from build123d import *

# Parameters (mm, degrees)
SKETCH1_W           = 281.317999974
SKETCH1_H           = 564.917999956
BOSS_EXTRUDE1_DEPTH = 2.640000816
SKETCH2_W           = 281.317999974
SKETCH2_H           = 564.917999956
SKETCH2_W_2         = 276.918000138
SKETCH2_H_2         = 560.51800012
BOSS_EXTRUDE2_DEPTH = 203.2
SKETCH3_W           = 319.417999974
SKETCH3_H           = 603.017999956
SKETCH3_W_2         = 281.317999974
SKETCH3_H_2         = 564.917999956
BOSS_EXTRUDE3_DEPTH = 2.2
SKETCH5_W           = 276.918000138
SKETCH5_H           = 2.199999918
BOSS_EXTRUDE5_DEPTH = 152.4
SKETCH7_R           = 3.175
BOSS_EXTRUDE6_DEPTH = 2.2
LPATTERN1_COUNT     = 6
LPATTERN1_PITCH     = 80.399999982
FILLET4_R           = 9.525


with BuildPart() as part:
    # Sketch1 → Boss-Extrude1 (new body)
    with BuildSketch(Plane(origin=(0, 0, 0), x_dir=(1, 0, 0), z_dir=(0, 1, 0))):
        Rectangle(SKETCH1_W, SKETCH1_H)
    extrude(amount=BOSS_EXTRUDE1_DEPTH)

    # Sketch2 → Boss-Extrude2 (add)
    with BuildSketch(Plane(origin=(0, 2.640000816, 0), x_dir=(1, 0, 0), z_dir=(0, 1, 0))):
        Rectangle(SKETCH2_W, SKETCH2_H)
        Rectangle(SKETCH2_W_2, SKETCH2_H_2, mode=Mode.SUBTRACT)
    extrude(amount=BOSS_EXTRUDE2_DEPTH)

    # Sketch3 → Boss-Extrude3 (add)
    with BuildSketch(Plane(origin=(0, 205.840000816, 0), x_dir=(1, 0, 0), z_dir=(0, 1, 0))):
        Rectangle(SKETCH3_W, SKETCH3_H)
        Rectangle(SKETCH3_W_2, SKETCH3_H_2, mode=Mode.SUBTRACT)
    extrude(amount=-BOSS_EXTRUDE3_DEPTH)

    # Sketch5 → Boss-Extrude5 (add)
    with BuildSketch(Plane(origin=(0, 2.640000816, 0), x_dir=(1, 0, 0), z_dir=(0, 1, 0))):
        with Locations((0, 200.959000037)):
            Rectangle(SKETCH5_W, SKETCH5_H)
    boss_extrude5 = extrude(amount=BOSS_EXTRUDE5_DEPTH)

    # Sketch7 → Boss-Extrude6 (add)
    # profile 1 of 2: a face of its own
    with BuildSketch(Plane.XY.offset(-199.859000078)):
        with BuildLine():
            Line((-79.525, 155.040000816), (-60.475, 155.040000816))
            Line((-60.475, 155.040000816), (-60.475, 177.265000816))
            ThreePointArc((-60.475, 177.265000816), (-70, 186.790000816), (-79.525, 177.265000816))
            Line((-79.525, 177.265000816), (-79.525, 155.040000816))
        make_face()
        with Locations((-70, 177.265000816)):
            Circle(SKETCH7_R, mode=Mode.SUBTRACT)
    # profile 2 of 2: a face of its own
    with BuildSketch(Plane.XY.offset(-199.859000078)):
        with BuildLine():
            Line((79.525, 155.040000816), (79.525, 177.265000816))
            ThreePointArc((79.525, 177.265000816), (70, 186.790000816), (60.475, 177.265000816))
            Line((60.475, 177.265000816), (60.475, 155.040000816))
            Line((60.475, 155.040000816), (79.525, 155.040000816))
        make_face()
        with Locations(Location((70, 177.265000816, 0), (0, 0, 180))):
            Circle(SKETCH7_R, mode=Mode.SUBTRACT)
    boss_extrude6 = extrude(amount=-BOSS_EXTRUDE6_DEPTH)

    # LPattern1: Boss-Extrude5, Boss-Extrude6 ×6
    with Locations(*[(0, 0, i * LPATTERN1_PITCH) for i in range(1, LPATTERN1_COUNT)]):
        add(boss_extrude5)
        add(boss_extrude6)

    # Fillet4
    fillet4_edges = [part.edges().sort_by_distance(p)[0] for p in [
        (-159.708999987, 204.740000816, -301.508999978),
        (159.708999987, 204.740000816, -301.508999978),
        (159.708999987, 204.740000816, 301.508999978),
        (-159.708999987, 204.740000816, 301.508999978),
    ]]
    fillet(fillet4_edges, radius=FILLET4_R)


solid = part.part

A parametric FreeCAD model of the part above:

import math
import FreeCAD as App
import Part
import Sketcher

V = App.Vector
Q = App.Units.Quantity


def edges_at(feature, points):
    """Names of the edges that pass closest to the given points."""
    edges = feature.Shape.Edges
    near = lambda p: min(range(len(edges)), key=lambda i: edges[i].distToShape(Part.Vertex(*p))[0])
    return sorted({f"Edge{near(p) + 1}" for p in points})

doc = App.newDocument("Part")
body = doc.addObject("PartDesign::Body", "Body")

# Sketch on XZ plane
sketch1 = body.newObject("Sketcher::SketchObject", "Sketch")
sketch1.AttachmentSupport = (doc.getObject("XZ_Plane"), [""])
sketch1.MapMode = "FlatFace"
sketch1.addGeometry([
    Part.LineSegment(V(-141, -282, 0), V(-141, 282, 0)),
    Part.LineSegment(V(-141, 282, 0), V(141, 282, 0)),
    Part.LineSegment(V(141, 282, 0), V(141, -282, 0)),
    Part.LineSegment(V(141, -282, 0), V(-141, -282, 0)),
], False)
sketch1.addConstraint([
    Sketcher.Constraint("Coincident", 0, 2, 1, 1),
    Sketcher.Constraint("Coincident", 1, 2, 2, 1),
    Sketcher.Constraint("Coincident", 2, 2, 3, 1),
    Sketcher.Constraint("Coincident", 3, 2, 0, 1),
    Sketcher.Constraint("Vertical", 0),
    Sketcher.Constraint("Horizontal", 1),
    Sketcher.Constraint("Vertical", 2),
    Sketcher.Constraint("Horizontal", 3),
    Sketcher.Constraint("Symmetric", 0, 2, 2, 2, -1, 1),
    Sketcher.Constraint("DistanceX", 1, 1, 1, 2, Q("281.318 mm")),
    Sketcher.Constraint("DistanceY", 0, 1, 0, 2, Q("564.918 mm")),
])
pad1 = body.newObject("PartDesign::Pad", "Pad")
pad1.Profile = sketch1
pad1.Length = 2.640001
pad1.Reversed = True

# Sketch on XZ plane
sketch2 = body.newObject("Sketcher::SketchObject", "Sketch001")
sketch2.AttachmentSupport = (doc.getObject("XZ_Plane"), [""])
sketch2.MapMode = "FlatFace"
sketch2.AttachmentOffset = App.Placement(V(0, 0, -2.640001), App.Rotation())
sketch2.addGeometry([
    Part.LineSegment(V(-141, -282, 0), V(-141, 282, 0)),  # 0
    Part.LineSegment(V(-141, 282, 0), V(141, 282, 0)),  # 1
    Part.LineSegment(V(141, 282, 0), V(141, -282, 0)),  # 2
    Part.LineSegment(V(141, -282, 0), V(-141, -282, 0)),  # 3
    Part.LineSegment(V(138, 280, 0), V(-138, 280, 0)),  # 4
    Part.LineSegment(V(-138, 280, 0), V(-138, -280, 0)),  # 5
    Part.LineSegment(V(-138, -280, 0), V(138, -280, 0)),  # 6
    Part.LineSegment(V(138, -280, 0), V(138, 280, 0)),  # 7
], False)
sketch2.addConstraint([
    Sketcher.Constraint("Coincident", 0, 2, 1, 1),
    Sketcher.Constraint("Coincident", 1, 2, 2, 1),
    Sketcher.Constraint("Coincident", 2, 2, 3, 1),
    Sketcher.Constraint("Coincident", 3, 2, 0, 1),
    Sketcher.Constraint("Coincident", 4, 2, 5, 1),
    Sketcher.Constraint("Coincident", 5, 2, 6, 1),
    Sketcher.Constraint("Coincident", 6, 2, 7, 1),
    Sketcher.Constraint("Coincident", 7, 2, 4, 1),
    Sketcher.Constraint("Vertical", 0),
    Sketcher.Constraint("Horizontal", 1),
    Sketcher.Constraint("Vertical", 2),
    Sketcher.Constraint("Horizontal", 3),
    Sketcher.Constraint("Horizontal", 4),
    Sketcher.Constraint("Vertical", 5),
    Sketcher.Constraint("Horizontal", 6),
    Sketcher.Constraint("Vertical", 7),
    Sketcher.Constraint("Symmetric", 0, 2, 2, 2, -1, 1),
    Sketcher.Constraint("Symmetric", 4, 2, 6, 2, -1, 1),
    Sketcher.Constraint("DistanceX", 1, 1, 1, 2, Q("281.318 mm")),
    Sketcher.Constraint("DistanceX", 4, 2, 4, 1, Q("276.918 mm")),
    Sketcher.Constraint("DistanceY", 0, 1, 0, 2, Q("564.918 mm")),
    Sketcher.Constraint("DistanceY", 5, 2, 5, 1, Q("560.518 mm")),
])
pad2 = body.newObject("PartDesign::Pad", "Pad001")
pad2.Profile = sketch2
pad2.Length = Q("8 in")
pad2.Reversed = True

# Sketch on XZ plane
sketch3 = body.newObject("Sketcher::SketchObject", "Sketch002")
sketch3.AttachmentSupport = (doc.getObject("XZ_Plane"), [""])
sketch3.MapMode = "FlatFace"
sketch3.AttachmentOffset = App.Placement(V(0, 0, -205.840001), App.Rotation())
sketch3.addGeometry([
    Part.LineSegment(V(-160, -302, 0), V(-160, 302, 0)),  # 0
    Part.LineSegment(V(-160, 302, 0), V(160, 302, 0)),  # 1
    Part.LineSegment(V(160, 302, 0), V(160, -302, 0)),  # 2
    Part.LineSegment(V(160, -302, 0), V(-160, -302, 0)),  # 3
    Part.LineSegment(V(141, 282, 0), V(-141, 282, 0)),  # 4
    Part.LineSegment(V(-141, 282, 0), V(-141, -282, 0)),  # 5
    Part.LineSegment(V(-141, -282, 0), V(141, -282, 0)),  # 6
    Part.LineSegment(V(141, -282, 0), V(141, 282, 0)),  # 7
], False)
sketch3.addConstraint([
    Sketcher.Constraint("Coincident", 0, 2, 1, 1),
    Sketcher.Constraint("Coincident", 1, 2, 2, 1),
    Sketcher.Constraint("Coincident", 2, 2, 3, 1),
    Sketcher.Constraint("Coincident", 3, 2, 0, 1),
    Sketcher.Constraint("Coincident", 4, 2, 5, 1),
    Sketcher.Constraint("Coincident", 5, 2, 6, 1),
    Sketcher.Constraint("Coincident", 6, 2, 7, 1),
    Sketcher.Constraint("Coincident", 7, 2, 4, 1),
    Sketcher.Constraint("Vertical", 0),
    Sketcher.Constraint("Horizontal", 1),
    Sketcher.Constraint("Vertical", 2),
    Sketcher.Constraint("Horizontal", 3),
    Sketcher.Constraint("Horizontal", 4),
    Sketcher.Constraint("Vertical", 5),
    Sketcher.Constraint("Horizontal", 6),
    Sketcher.Constraint("Vertical", 7),
    Sketcher.Constraint("Symmetric", 0, 2, 2, 2, -1, 1),
    Sketcher.Constraint("Symmetric", 4, 2, 6, 2, -1, 1),
    Sketcher.Constraint("DistanceX", 0, 2, 4, 2, Q("0.75 in")),
    Sketcher.Constraint("DistanceY", 4, 2, 0, 2, Q("0.75 in")),
    Sketcher.Constraint("DistanceX", 1, 1, 1, 2, Q("319.418 mm")),
    Sketcher.Constraint("DistanceY", 0, 1, 0, 2, Q("603.018 mm")),
])
pad3 = body.newObject("PartDesign::Pad", "Pad002")
pad3.Profile = sketch3
pad3.Length = 2.2

# Sketch on XZ plane
sketch4 = body.newObject("Sketcher::SketchObject", "Sketch003")
sketch4.AttachmentSupport = (doc.getObject("XZ_Plane"), [""])
sketch4.MapMode = "FlatFace"
sketch4.AttachmentOffset = App.Placement(V(0, 0, -2.640001), App.Rotation())
sketch4.addGeometry([
    Part.LineSegment(V(-138.5, -202.1, 0), V(-138.5, -199.9, 0)),
    Part.LineSegment(V(-138.5, -199.9, 0), V(138.5, -199.9, 0)),
    Part.LineSegment(V(138.5, -199.9, 0), V(138.5, -202.1, 0)),
    Part.LineSegment(V(138.5, -202.1, 0), V(-138.5, -202.1, 0)),
], False)
sketch4.addConstraint([
    Sketcher.Constraint("Coincident", 0, 2, 1, 1),
    Sketcher.Constraint("Coincident", 1, 2, 2, 1),
    Sketcher.Constraint("Coincident", 2, 2, 3, 1),
    Sketcher.Constraint("Coincident", 3, 2, 0, 1),
    Sketcher.Constraint("Vertical", 0),
    Sketcher.Constraint("Horizontal", 1),
    Sketcher.Constraint("Vertical", 2),
    Sketcher.Constraint("Horizontal", 3),
    Sketcher.Constraint("DistanceX", 1, 1, 1, 2, Q("276.918 mm")),
    Sketcher.Constraint("DistanceY", 0, 1, 0, 2, Q("2.2 mm")),
    Sketcher.Constraint("DistanceX", 0, 2, -1, 1, Q("138.459 mm")),
    Sketcher.Constraint("DistanceY", 0, 2, -1, 1, Q("199.859 mm")),
])
pad4 = body.newObject("PartDesign::Pad", "Pad003")
pad4.Profile = sketch4
pad4.Length = Q("6 in")
pad4.Reversed = True

# Sketch on XY plane
sketch5 = body.newObject("Sketcher::SketchObject", "Sketch004")
sketch5.AttachmentSupport = (doc.getObject("XY_Plane"), [""])
sketch5.MapMode = "FlatFace"
sketch5.AttachmentOffset = App.Placement(V(0, 0, -199.859), App.Rotation())
sketch5.addGeometry([
    Part.LineSegment(V(-79.5, 155, 0), V(-60.5, 155, 0)),  # 0
    Part.LineSegment(V(-60.5, 155, 0), V(-60.5, 177.3, 0)),  # 1
    Part.ArcOfCircle(Part.Circle(V(-70, 177.3, 0), V(0, 0, 1), 9.5), math.radians(0), math.radians(180)),  # 2
    Part.LineSegment(V(-79.5, 177.3, 0), V(-79.5, 155, 0)),  # 3
    Part.Circle(V(-70, 177.3, 0), V(0, 0, 1), 3.2),  # 4
    Part.LineSegment(V(79.5, 155, 0), V(79.5, 177.3, 0)),  # 5
    Part.ArcOfCircle(Part.Circle(V(70, 177.3, 0), V(0, 0, 1), 9.5), math.radians(0), math.radians(180)),  # 6
    Part.LineSegment(V(60.5, 177.3, 0), V(60.5, 155, 0)),  # 7
    Part.LineSegment(V(60.5, 155, 0), V(79.5, 155, 0)),  # 8
    Part.Circle(V(70, 177.3, 0), V(0, 0, 1), 3.2),  # 9
], False)
sketch5.addConstraint([
    Sketcher.Constraint("Coincident", 0, 2, 1, 1),
    Sketcher.Constraint("Tangent", 1, 2, 2, 1),
    Sketcher.Constraint("Tangent", 2, 2, 3, 1),
    Sketcher.Constraint("Coincident", 3, 2, 0, 1),
    Sketcher.Constraint("Tangent", 5, 2, 6, 1),
    Sketcher.Constraint("Tangent", 6, 2, 7, 1),
    Sketcher.Constraint("Coincident", 7, 2, 8, 1),
    Sketcher.Constraint("Coincident", 8, 2, 5, 1),
    Sketcher.Constraint("Horizontal", 0),
    Sketcher.Constraint("Vertical", 1),
    Sketcher.Constraint("Vertical", 3),
    Sketcher.Constraint("Vertical", 5),
    Sketcher.Constraint("Vertical", 7),
    Sketcher.Constraint("Horizontal", 8),
    Sketcher.Constraint("Coincident", 4, 3, 2, 3),
    Sketcher.Constraint("Coincident", 9, 3, 6, 3),
    Sketcher.Constraint("Equal", 2, 6),
    Sketcher.Constraint("Equal", 4, 9),
    Sketcher.Constraint("Symmetric", 2, 3, 6, 3, -2),
    Sketcher.Constraint("Horizontal", 3, 2, 7, 2),
    Sketcher.Constraint("Diameter", 4, Q("0.25 in")),
    Sketcher.Constraint("Radius", 2, Q("0.375 in")),
    Sketcher.Constraint("DistanceY", 1, 1, 1, 2, Q("0.875 in")),
    Sketcher.Constraint("DistanceX", 2, 3, -1, 1, Q("70 mm")),
    Sketcher.Constraint("DistanceY", -1, 1, 2, 3, Q("177.265001 mm")),
])
pad5 = body.newObject("PartDesign::Pad", "Pad004")
pad5.Profile = sketch5
pad5.Length = 2.2
pad5.Reversed = True
doc.recompute()

linearpattern = body.newObject("PartDesign::LinearPattern", "LinearPattern")
linearpattern.Originals = [pad4, pad5]
linearpattern.Direction = (doc.getObject("Z_Axis"), [""])
linearpattern.Mode = "offset"
linearpattern.Offset = 80.4
linearpattern.Occurrences = 6
body.Tip = linearpattern
doc.recompute()

fillet = body.newObject("PartDesign::Fillet", "Fillet")
fillet.Base = (linearpattern, edges_at(linearpattern, [
    (-159.709, 204.74, -301.509),
    (159.709, 204.74, -301.509),
    (159.709, 204.74, 301.509),
    (-159.709, 204.74, 301.509),
]))
fillet.Radius = Q("0.375 in")

doc.recompute()
